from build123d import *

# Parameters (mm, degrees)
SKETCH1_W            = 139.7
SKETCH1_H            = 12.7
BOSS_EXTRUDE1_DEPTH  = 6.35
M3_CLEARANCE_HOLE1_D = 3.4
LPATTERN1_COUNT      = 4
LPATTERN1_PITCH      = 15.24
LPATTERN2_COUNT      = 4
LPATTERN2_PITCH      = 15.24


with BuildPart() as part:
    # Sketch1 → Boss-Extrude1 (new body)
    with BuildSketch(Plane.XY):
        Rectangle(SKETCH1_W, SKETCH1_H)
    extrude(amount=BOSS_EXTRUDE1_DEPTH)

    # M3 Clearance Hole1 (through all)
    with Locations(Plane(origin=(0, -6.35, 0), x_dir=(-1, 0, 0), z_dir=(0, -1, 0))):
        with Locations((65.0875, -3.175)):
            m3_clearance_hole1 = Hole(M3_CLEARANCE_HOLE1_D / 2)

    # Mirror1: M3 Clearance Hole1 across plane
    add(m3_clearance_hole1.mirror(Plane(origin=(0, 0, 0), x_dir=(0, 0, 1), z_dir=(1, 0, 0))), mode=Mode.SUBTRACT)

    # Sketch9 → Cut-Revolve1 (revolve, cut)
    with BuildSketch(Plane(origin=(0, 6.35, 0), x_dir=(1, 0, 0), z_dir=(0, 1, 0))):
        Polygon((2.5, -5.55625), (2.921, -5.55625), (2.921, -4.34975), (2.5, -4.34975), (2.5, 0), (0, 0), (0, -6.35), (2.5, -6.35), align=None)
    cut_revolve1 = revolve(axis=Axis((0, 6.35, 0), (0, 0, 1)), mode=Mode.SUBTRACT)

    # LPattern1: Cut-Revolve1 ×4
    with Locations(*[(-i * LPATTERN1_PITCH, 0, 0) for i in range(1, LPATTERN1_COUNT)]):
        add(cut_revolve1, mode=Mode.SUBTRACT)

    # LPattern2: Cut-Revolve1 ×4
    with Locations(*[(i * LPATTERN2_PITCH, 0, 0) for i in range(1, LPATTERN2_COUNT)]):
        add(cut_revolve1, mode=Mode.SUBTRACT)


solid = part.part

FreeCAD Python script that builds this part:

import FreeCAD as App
import Part
import Sketcher
from FreeCAD import Vector
Q = App.Units.Quantity

doc = App.newDocument("Part")
body = doc.addObject("PartDesign::Body", "Body")

sketch1 = doc.addObject("Sketcher::SketchObject", "Sketch")
body.addObject(sketch1)
sketch1.AttachmentSupport = (doc.XY_Plane, [""])
sketch1.MapMode = "FlatFace"
sketch1.addGeometry([
    Part.LineSegment(Vector(-70, 6, 0), Vector(-70, -6, 0)),
    Part.LineSegment(Vector(-70, -6, 0), Vector(70, -6, 0)),
    Part.LineSegment(Vector(70, -6, 0), Vector(70, 6, 0)),
    Part.LineSegment(Vector(70, 6, 0), Vector(-70, 6, 0)),
], False)
sketch1.addConstraint([
    Sketcher.Constraint("Coincident", 0, 2, 1, 1),
    Sketcher.Constraint("Coincident", 1, 2, 2, 1),
    Sketcher.Constraint("Coincident", 2, 2, 3, 1),
    Sketcher.Constraint("Coincident", 3, 2, 0, 1),
    Sketcher.Constraint("Vertical", 0),
    Sketcher.Constraint("Horizontal", 1),
    Sketcher.Constraint("Vertical", 2),
    Sketcher.Constraint("Horizontal", 3),
    Sketcher.Constraint("Symmetric", 0, 2, 2, 2, -1, 1),
    Sketcher.Constraint("DistanceX", 1, 1, 1, 2, Q("5.5 in")),
    Sketcher.Constraint("DistanceY", 0, 2, 0, 1, Q("0.5 in")),
])
pad1 = doc.addObject("PartDesign::Pad", "Pad")
body.addObject(pad1)
pad1.Profile = sketch1
pad1.Length = Q("0.25 in")

sketch2 = doc.addObject("Sketcher::SketchObject", "Sketch001")
body.addObject(sketch2)
sketch2.AttachmentSupport = (doc.XZ_Plane, [""])
sketch2.MapMode = "FlatFace"
sketch2.AttachmentOffset = App.Placement(Vector(0, 0, 0.25 * 25.4), App.Rotation())
sketch2.addGeometry(Part.Circle(Vector(-65.1, 3.2, 0), Vector(0, 0, 1), 1.7), False)
sketch2.addConstraint([
    Sketcher.Constraint("Diameter", 0, Q("3.4 mm")),
    Sketcher.Constraint("DistanceX", 0, 3, -1, 1, Q("2.5625 in")),
    Sketcher.Constraint("DistanceY", -1, 1, 0, 3, Q("0.125 in")),
])
doc.recompute()
hole = doc.addObject("PartDesign::Hole", "Hole")
body.addObject(hole)
hole.Profile = sketch2
hole.ThreadType = "None"
hole.Diameter = 3.4
hole.DepthType = "ThroughAll"
doc.recompute()

mirrored = doc.addObject("PartDesign::Mirrored", "Mirrored")
body.addObject(mirrored)
mirrored.Originals = [hole]
mirrored.MirrorPlane = (doc.YZ_Plane, [""])
body.Tip = mirrored

sketch3 = doc.addObject("Sketcher::SketchObject", "Sketch002")
body.addObject(sketch3)
sketch3.AttachmentSupport = (doc.XZ_Plane, [""])
sketch3.MapMode = "FlatFace"
sketch3.AttachmentOffset = App.Placement(Vector(0, 0, -0.25 * 25.4), App.Rotation())
sketch3.addGeometry([
    Part.LineSegment(Vector(2.5, 5.56, 0), Vector(2.92, 5.56, 0)),
    Part.LineSegment(Vector(2.92, 5.56, 0), Vector(2.92, 4.35, 0)),
    Part.LineSegment(Vector(2.92, 4.35, 0), Vector(2.5, 4.35, 0)),
    Part.LineSegment(Vector(2.5, 4.35, 0), Vector(2.5, 0, 0)),
    Part.LineSegment(Vector(2.5, 0, 0), Vector(0, 0, 0)),
    Part.LineSegment(Vector(0, 0, 0), Vector(0, 6.35, 0)),
    Part.LineSegment(Vector(0, 6.35, 0), Vector(2.5, 6.35, 0)),
    Part.LineSegment(Vector(2.5, 6.35, 0), Vector(2.5, 5.56, 0)),
], False)
sketch3.addConstraint([
    Sketcher.Constraint("Coincident", 0, 2, 1, 1),
    Sketcher.Constraint("Coincident", 1, 2, 2, 1),
    Sketcher.Constraint("Coincident", 2, 2, 3, 1),
    Sketcher.Constraint("Coincident", 3, 2, 4, 1),
    Sketcher.Constraint("Coincident", 4, 2, 5, 1),
    Sketcher.Constraint("Coincident", 5, 2, 6, 1),
    Sketcher.Constraint("Coincident", 6, 2, 7, 1),
    Sketcher.Constraint("Coincident", 7, 2, 0, 1),
    Sketcher.Constraint("Horizontal", 0),
    Sketcher.Constraint("Vertical", 1),
    Sketcher.Constraint("Horizontal", 2),
    Sketcher.Constraint("Vertical", 3),
    Sketcher.Constraint("Horizontal", 4),
    Sketcher.Constraint("Vertical", 5),
    Sketcher.Constraint("Horizontal", 6),
    Sketcher.Constraint("Vertical", 7),
    Sketcher.Constraint("Coincident", 4, 2, -1, 1),
    Sketcher.Constraint("Vertical", 3, 2, 6, 2),
    Sketcher.Constraint("DistanceY", 5, 1, 5, 2, Q("0.25 in")),
    Sketcher.Constraint("DistanceY", 7, 2, 7, 1, Q("0.03125 in")),
    Sketcher.Constraint("DistanceY", 1, 2, 1, 1, Q("0.0475 in")),
    Sketcher.Constraint("DistanceX", -1, 1, 0, 2, Q("0.115 in")),
    Sketcher.Constraint("DistanceX", 0, 1, 0, 2, Q("0.421 mm")),
])
groove = doc.addObject("PartDesign::Groove", "Groove")
body.addObject(groove)
groove.Profile = sketch3
groove.ReferenceAxis = (sketch3, ["V_Axis"])
groove.Angle = 360
doc.recompute()

linearpattern = doc.addObject("PartDesign::LinearPattern", "LinearPattern")
body.addObject(linearpattern)
linearpattern.Originals = [groove]
linearpattern.Direction = (doc.X_Axis, [""])
linearpattern.Mode = "offset"
linearpattern.Offset = Q("0.6 in")
linearpattern.Occurrences = 4
linearpattern.Reversed = True
body.Tip = linearpattern
doc.recompute()

linearpattern2 = doc.addObject("PartDesign::LinearPattern", "LinearPattern001")
body.addObject(linearpattern2)
linearpattern2.Originals = [groove]
linearpattern2.Direction = (doc.X_Axis, [""])
linearpattern2.Mode = "offset"
linearpattern2.Offset = Q("0.6 in")
linearpattern2.Occurrences = 4
body.Tip = linearpattern2

doc.recompute()
